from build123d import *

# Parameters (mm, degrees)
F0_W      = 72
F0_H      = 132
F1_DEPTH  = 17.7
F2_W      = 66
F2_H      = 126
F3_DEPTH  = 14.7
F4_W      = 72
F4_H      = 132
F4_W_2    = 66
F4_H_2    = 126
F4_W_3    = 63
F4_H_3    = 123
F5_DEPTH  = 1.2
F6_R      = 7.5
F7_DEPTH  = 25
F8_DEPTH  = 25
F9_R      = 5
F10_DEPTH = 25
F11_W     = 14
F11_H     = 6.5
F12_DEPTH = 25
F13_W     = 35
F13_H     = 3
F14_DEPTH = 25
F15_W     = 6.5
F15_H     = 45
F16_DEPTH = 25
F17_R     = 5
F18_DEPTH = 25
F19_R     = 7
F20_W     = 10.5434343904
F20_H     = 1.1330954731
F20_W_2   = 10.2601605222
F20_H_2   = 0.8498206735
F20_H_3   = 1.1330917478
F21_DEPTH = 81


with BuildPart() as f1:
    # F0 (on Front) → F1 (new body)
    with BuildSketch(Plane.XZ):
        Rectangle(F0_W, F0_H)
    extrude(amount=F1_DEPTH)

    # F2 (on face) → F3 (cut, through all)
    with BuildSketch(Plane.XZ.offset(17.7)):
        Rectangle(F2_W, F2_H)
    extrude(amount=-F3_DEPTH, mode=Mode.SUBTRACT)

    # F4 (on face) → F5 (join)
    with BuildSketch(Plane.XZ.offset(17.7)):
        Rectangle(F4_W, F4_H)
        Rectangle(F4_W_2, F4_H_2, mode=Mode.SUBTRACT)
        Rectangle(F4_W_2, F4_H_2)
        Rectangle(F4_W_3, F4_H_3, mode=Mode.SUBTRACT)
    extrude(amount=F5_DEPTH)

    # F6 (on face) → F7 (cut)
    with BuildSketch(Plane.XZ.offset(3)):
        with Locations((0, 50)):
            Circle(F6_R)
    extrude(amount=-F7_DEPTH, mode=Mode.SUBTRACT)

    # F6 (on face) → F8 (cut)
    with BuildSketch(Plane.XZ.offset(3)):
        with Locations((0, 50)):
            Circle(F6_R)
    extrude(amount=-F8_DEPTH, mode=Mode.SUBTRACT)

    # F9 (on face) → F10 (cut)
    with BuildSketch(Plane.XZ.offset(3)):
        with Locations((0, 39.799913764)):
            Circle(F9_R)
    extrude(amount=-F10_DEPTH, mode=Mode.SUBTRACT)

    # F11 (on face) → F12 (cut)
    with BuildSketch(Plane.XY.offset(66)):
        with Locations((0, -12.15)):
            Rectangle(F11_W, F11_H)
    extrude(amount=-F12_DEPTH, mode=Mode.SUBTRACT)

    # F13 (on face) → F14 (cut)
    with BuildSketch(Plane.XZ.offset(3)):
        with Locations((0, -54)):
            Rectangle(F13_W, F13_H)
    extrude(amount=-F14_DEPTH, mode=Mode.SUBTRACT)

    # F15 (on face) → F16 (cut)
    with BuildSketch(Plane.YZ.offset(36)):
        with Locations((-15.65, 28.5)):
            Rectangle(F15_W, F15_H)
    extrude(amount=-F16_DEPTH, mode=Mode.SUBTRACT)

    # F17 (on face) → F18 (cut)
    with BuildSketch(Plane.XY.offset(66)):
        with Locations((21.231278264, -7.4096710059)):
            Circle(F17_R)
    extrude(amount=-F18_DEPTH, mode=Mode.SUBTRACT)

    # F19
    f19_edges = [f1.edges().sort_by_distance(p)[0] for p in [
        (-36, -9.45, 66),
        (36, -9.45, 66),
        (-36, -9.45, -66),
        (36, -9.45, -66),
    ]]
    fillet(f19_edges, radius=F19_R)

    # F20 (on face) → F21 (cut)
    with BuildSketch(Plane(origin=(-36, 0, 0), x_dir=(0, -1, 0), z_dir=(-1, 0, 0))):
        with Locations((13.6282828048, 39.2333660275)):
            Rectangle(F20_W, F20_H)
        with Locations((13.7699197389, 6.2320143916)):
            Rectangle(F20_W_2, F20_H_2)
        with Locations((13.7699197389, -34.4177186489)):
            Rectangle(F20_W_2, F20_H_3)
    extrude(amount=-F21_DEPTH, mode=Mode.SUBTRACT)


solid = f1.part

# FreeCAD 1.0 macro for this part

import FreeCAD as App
import Part
import Sketcher
Q = App.Units.Quantity


def edges_at(feature, points):
    """Names of the edges that pass closest to the given points."""
    edges = feature.Shape.Edges
    near = lambda p: min(range(len(edges)), key=lambda i: edges[i].distToShape(Part.Vertex(*p))[0])
    return sorted({f"Edge{near(p) + 1}" for p in points})


def add_polygon(sketch, points):
    """Adds a closed chain of lines whose ends are joined by coincident constraints."""
    first, n = sketch.GeometryCount, len(points)
    for a, b in zip(points, points[1:] + points[:1]):
        sketch.addGeometry(Part.LineSegment(App.Vector(*a, 0), App.Vector(*b, 0)), False)
    for i in range(n):
        sketch.addConstraint(Sketcher.Constraint("Coincident", first + i, 2, first + (i + 1) % n, 1))

doc = App.newDocument("Part")
params = doc.addObject("Spreadsheet::Sheet", "Params")
for row, (alias, value) in enumerate([
    ("sketch1_width", "72 mm"),
    ("sketch1_height", "132 mm"),
    ("pad1_length", "17.7 mm"),
    ("sketch2_width", "66 mm"),
    ("sketch2_height", "126 mm"),
    ("pocket1_length", "14.7 mm"),
    ("sketch3_width", "72 mm"),
    ("sketch3_width2", "63 mm"),
    ("sketch3_height", "132 mm"),
    ("sketch3_height2", "123 mm"),
    ("pad2_length", "1.2 mm"),
    ("sketch4_diameter", "15 mm"),
    ("pocket2_length", "25 mm"),
    ("sketch5_diameter", "15 mm"),
    ("pocket3_length", "25 mm"),
    ("sketch6_diameter", "10 mm"),
    ("pocket4_length", "25 mm"),
    ("sketch7_width", "14 mm"),
    ("sketch7_height", "6.5 mm"),
    ("pocket5_length", "25 mm"),
    ("sketch8_width", "35 mm"),
    ("sketch8_height", "3 mm"),
    ("pocket6_length", "25 mm"),
    ("sketch9_height", "45 mm"),
    ("sketch9_width", "6.5 mm"),
    ("pocket7_length", "25 mm"),
    ("sketch10_diameter", "10 mm"),
    ("pocket8_length", "25 mm"),
    ("fillet_radius", "7 mm"),
    ("pocket9_length", "81 mm"),
], start=1):
    params.set(f"A{row}", alias)
    params.set(f"B{row}", "=" + value)
    params.setAlias(f"B{row}", alias)

body = doc.addObject("PartDesign::Body", "Body")

sketch1 = body.newObject("Sketcher::SketchObject", "Sketch")
sketch1.AttachmentSupport = (doc.getObject("XZ_Plane"), [""])
sketch1.MapMode = "FlatFace"
add_polygon(sketch1, [(-36, 66), (-36, -66), (36, -66), (36, 66)])
sketch1.addConstraint(Sketcher.Constraint("Vertical", 0))
sketch1.addConstraint(Sketcher.Constraint("Horizontal", 1))
sketch1.addConstraint(Sketcher.Constraint("Vertical", 2))
sketch1.addConstraint(Sketcher.Constraint("Horizontal", 3))
sketch1.addConstraint(Sketcher.Constraint("Symmetric", 0, 2, 2, 2, -1, 1))
sketch1.addConstraint(Sketcher.Constraint("DistanceX", 1, 1, 1, 2, Q("72 mm")))
sketch1.addConstraint(Sketcher.Constraint("DistanceY", 0, 2, 0, 1, Q("132 mm")))
sketch1.setExpression("Constraints[9]", "Params.sketch1_width")
sketch1.setExpression("Constraints[10]", "Params.sketch1_height")
pad1 = body.newObject("PartDesign::Pad", "Pad")
pad1.Profile = sketch1
pad1.setExpression("Length", "Params.pad1_length")

sketch2 = body.newObject("Sketcher::SketchObject", "Sketch001")
sketch2.AttachmentSupport = (doc.getObject("XZ_Plane"), [""])
sketch2.MapMode = "FlatFace"
sketch2.AttachmentOffset = App.Placement(App.Vector(0, 0, 17.7), App.Rotation())
add_polygon(sketch2, [(-33, 63), (-33, -63), (33, -63), (33, 63)])
sketch2.addConstraint(Sketcher.Constraint("Vertical", 0))
sketch2.addConstraint(Sketcher.Constraint("Horizontal", 1))
sketch2.addConstraint(Sketcher.Constraint("Vertical", 2))
sketch2.addConstraint(Sketcher.Constraint("Horizontal", 3))
sketch2.addConstraint(Sketcher.Constraint("Symmetric", 0, 2, 2, 2, -1, 1))
sketch2.addConstraint(Sketcher.Constraint("DistanceX", 1, 1, 1, 2, Q("66 mm")))
sketch2.addConstraint(Sketcher.Constraint("DistanceY", 0, 2, 0, 1, Q("126 mm")))
sketch2.setExpression("Constraints[9]", "Params.sketch2_width")
sketch2.setExpression("Constraints[10]", "Params.sketch2_height")
pocket1 = body.newObject("PartDesign::Pocket", "Pocket")
pocket1.Profile = sketch2
pocket1.setExpression("Length", "Params.pocket1_length")

sketch3 = body.newObject("Sketcher::SketchObject", "Sketch002")
sketch3.AttachmentSupport = (doc.getObject("XZ_Plane"), [""])
sketch3.MapMode = "FlatFace"
sketch3.AttachmentOffset = App.Placement(App.Vector(0, 0, 17.7), App.Rotation())
add_polygon(sketch3, [(-36, 66), (-36, -66), (36, -66), (36, 66)])
add_polygon(sketch3, [(32, -62), (-32, -62), (-32, 62), (32, 62)])
sketch3.addConstraint(Sketcher.Constraint("Vertical", 0))
sketch3.addConstraint(Sketcher.Constraint("Horizontal", 1))
sketch3.addConstraint(Sketcher.Constraint("Vertical", 2))
sketch3.addConstraint(Sketcher.Constraint("Horizontal", 3))
sketch3.addConstraint(Sketcher.Constraint("Horizontal", 4))
sketch3.addConstraint(Sketcher.Constraint("Vertical", 5))
sketch3.addConstraint(Sketcher.Constraint("Horizontal", 6))
sketch3.addConstraint(Sketcher.Constraint("Vertical", 7))
sketch3.addConstraint(Sketcher.Constraint("Symmetric", 0, 2, 2, 2, -1, 1))
sketch3.addConstraint(Sketcher.Constraint("Symmetric", 4, 2, 6, 2, -1, 1))
sketch3.addConstraint(Sketcher.Constraint("DistanceX", 1, 1, 1, 2, Q("72 mm")))
sketch3.addConstraint(Sketcher.Constraint("DistanceX", 4, 2, 4, 1, Q("63 mm")))
sketch3.addConstraint(Sketcher.Constraint("DistanceY", 0, 2, 0, 1, Q("132 mm")))
sketch3.addConstraint(Sketcher.Constraint("DistanceY", 5, 1, 5, 2, Q("123 mm")))
sketch3.setExpression("Constraints[18]", "Params.sketch3_width")
sketch3.setExpression("Constraints[19]", "Params.sketch3_width2")
sketch3.setExpression("Constraints[20]", "Params.sketch3_height")
sketch3.setExpression("Constraints[21]", "Params.sketch3_height2")
pad2 = body.newObject("PartDesign::Pad", "Pad001")
pad2.Profile = sketch3
pad2.setExpression("Length", "Params.pad2_length")

sketch4 = body.newObject("Sketcher::SketchObject", "Sketch003")
sketch4.AttachmentSupport = (doc.getObject("XZ_Plane"), [""])
sketch4.MapMode = "FlatFace"
sketch4.AttachmentOffset = App.Placement(App.Vector(0, 0, 3), App.Rotation())
sketch4.addGeometry(Part.Circle(App.Vector(0, 50, 0), App.Vector(0, 0, 1), 8), False)
sketch4.addConstraint(Sketcher.Constraint("PointOnObject", 0, 3, -2))
sketch4.addConstraint(Sketcher.Constraint("Diameter", 0, Q("15 mm")))
sketch4.addConstraint(Sketcher.Constraint("DistanceY", -1, 1, 0, 3, Q("50 mm")))
sketch4.setExpression("Constraints[1]", "Params.sketch4_diameter")
pocket2 = body.newObject("PartDesign::Pocket", "Pocket001")
pocket2.Profile = sketch4
pocket2.setExpression("Length", "Params.pocket2_length")

sketch5 = body.newObject("Sketcher::SketchObject", "Sketch004")
sketch5.AttachmentSupport = (doc.getObject("XZ_Plane"), [""])
sketch5.MapMode = "FlatFace"
sketch5.AttachmentOffset = App.Placement(App.Vector(0, 0, 3), App.Rotation())
sketch5.addGeometry(Part.Circle(App.Vector(0, 50, 0), App.Vector(0, 0, 1), 8), False)
sketch5.addConstraint(Sketcher.Constraint("PointOnObject", 0, 3, -2))
sketch5.addConstraint(Sketcher.Constraint("Diameter", 0, Q("15 mm")))
sketch5.addConstraint(Sketcher.Constraint("DistanceY", -1, 1, 0, 3, Q("50 mm")))
sketch5.setExpression("Constraints[1]", "Params.sketch5_diameter")
pocket3 = body.newObject("PartDesign::Pocket", "Pocket002")
pocket3.Profile = sketch5
pocket3.setExpression("Length", "Params.pocket3_length")

sketch6 = body.newObject("Sketcher::SketchObject", "Sketch005")
sketch6.AttachmentSupport = (doc.getObject("XZ_Plane"), [""])
sketch6.MapMode = "FlatFace"
sketch6.AttachmentOffset = App.Placement(App.Vector(0, 0, 3), App.Rotation())
sketch6.addGeometry(Part.Circle(App.Vector(0, 40, 0), App.Vector(0, 0, 1), 5), False)
sketch6.addConstraint(Sketcher.Constraint("PointOnObject", 0, 3, -2))
sketch6.addConstraint(Sketcher.Constraint("Diameter", 0, Q("10 mm")))
sketch6.addConstraint(Sketcher.Constraint("DistanceY", -1, 1, 0, 3, Q("39.799914 mm")))
sketch6.setExpression("Constraints[1]", "Params.sketch6_diameter")
pocket4 = body.newObject("PartDesign::Pocket", "Pocket003")
pocket4.Profile = sketch6
pocket4.setExpression("Length", "Params.pocket4_length")

sketch7 = body.newObject("Sketcher::SketchObject", "Sketch006")
sketch7.AttachmentSupport = (doc.getObject("XY_Plane"), [""])
sketch7.MapMode = "FlatFace"
sketch7.AttachmentOffset = App.Placement(App.Vector(0, 0, 66), App.Rotation())
add_polygon(sketch7, [(-7, -9), (-7, -15), (7, -15), (7, -9)])
sketch7.addConstraint(Sketcher.Constraint("Vertical", 0))
sketch7.addConstraint(Sketcher.Constraint("Horizontal", 1))
sketch7.addConstraint(Sketcher.Constraint("Vertical", 2))
sketch7.addConstraint(Sketcher.Constraint("Horizontal", 3))
sketch7.addConstraint(Sketcher.Constraint("DistanceX", 1, 1, 1, 2, Q("14 mm")))
sketch7.addConstraint(Sketcher.Constraint("DistanceY", 0, 2, 0, 1, Q("6.5 mm")))
sketch7.addConstraint(Sketcher.Constraint("DistanceX", 0, 2, -1, 1, Q("7 mm")))
sketch7.addConstraint(Sketcher.Constraint("DistanceY", 0, 2, -1, 1, Q("15.4 mm")))
sketch7.setExpression("Constraints[8]", "Params.sketch7_width")
sketch7.setExpression("Constraints[9]", "Params.sketch7_height")
pocket5 = body.newObject("PartDesign::Pocket", "Pocket004")
pocket5.Profile = sketch7
pocket5.setExpression("Length", "Params.pocket5_length")

sketch8 = body.newObject("Sketcher::SketchObject", "Sketch007")
sketch8.AttachmentSupport = (doc.getObject("XZ_Plane"), [""])
sketch8.MapMode = "FlatFace"
sketch8.AttachmentOffset = App.Placement(App.Vector(0, 0, 3), App.Rotation())
add_polygon(sketch8, [(-17.5, -52.5), (-17.5, -55.5), (17.5, -55.5), (17.5, -52.5)])
sketch8.addConstraint(Sketcher.Constraint("Vertical", 0))
sketch8.addConstraint(Sketcher.Constraint("Horizontal", 1))
sketch8.addConstraint(Sketcher.Constraint("Vertical", 2))
sketch8.addConstraint(Sketcher.Constraint("Horizontal", 3))
sketch8.addConstraint(Sketcher.Constraint("DistanceX", 1, 1, 1, 2, Q("35 mm")))
sketch8.addConstraint(Sketcher.Constraint("DistanceY", 0, 2, 0, 1, Q("3 mm")))
sketch8.addConstraint(Sketcher.Constraint("DistanceX", 0, 2, -1, 1, Q("17.5 mm")))
sketch8.addConstraint(Sketcher.Constraint("DistanceY", 0, 2, -1, 1, Q("55.5 mm")))
sketch8.setExpression("Constraints[8]", "Params.sketch8_width")
sketch8.setExpression("Constraints[9]", "Params.sketch8_height")
pocket6 = body.newObject("PartDesign::Pocket", "Pocket005")
pocket6.Profile = sketch8
pocket6.setExpression("Length", "Params.pocket6_length")

sketch9 = body.newObject("Sketcher::SketchObject", "Sketch008")
sketch9.AttachmentSupport = (doc.getObject("YZ_Plane"), [""])
sketch9.MapMode = "FlatFace"
sketch9.AttachmentOffset = App.Placement(App.Vector(0, 0, 36), App.Rotation())
add_polygon(sketch9, [(-19, 51), (-19, 6), (-12, 6), (-12, 51)])
sketch9.addConstraint(Sketcher.Constraint("Vertical", 0))
sketch9.addConstraint(Sketcher.Constraint("Horizontal", 1))
sketch9.addConstraint(Sketcher.Constraint("Vertical", 2))
sketch9.addConstraint(Sketcher.Constraint("Horizontal", 3))
sketch9.addConstraint(Sketcher.Constraint("DistanceY", 0, 2, 0, 1, Q("45 mm")))
sketch9.addConstraint(Sketcher.Constraint("DistanceX", 1, 1, 1, 2, Q("6.5 mm")))
sketch9.addConstraint(Sketcher.Constraint("DistanceY", -1, 1, 0, 2, Q("6 mm")))
sketch9.addConstraint(Sketcher.Constraint("DistanceX", 0, 2, -1, 1, Q("18.9 mm")))
sketch9.setExpression("Constraints[8]", "Params.sketch9_height")
sketch9.setExpression("Constraints[9]", "Params.sketch9_width")
pocket7 = body.newObject("PartDesign::Pocket", "Pocket006")
pocket7.Profile = sketch9
pocket7.setExpression("Length", "Params.pocket7_length")

sketch10 = body.newObject("Sketcher::SketchObject", "Sketch009")
sketch10.AttachmentSupport = (doc.getObject("XY_Plane"), [""])
sketch10.MapMode = "FlatFace"
sketch10.AttachmentOffset = App.Placement(App.Vector(0, 0, 66), App.Rotation())
sketch10.addGeometry(Part.Circle(App.Vector(21, -7, 0), App.Vector(0, 0, 1), 5), False)
sketch10.addConstraint(Sketcher.Constraint("Diameter", 0, Q("10 mm")))
sketch10.addConstraint(Sketcher.Constraint("DistanceX", -1, 1, 0, 3, Q("21.231278 mm")))
sketch10.addConstraint(Sketcher.Constraint("DistanceY", 0, 3, -1, 1, Q("7.409671 mm")))
sketch10.setExpression("Constraints[0]", "Params.sketch10_diameter")
pocket8 = body.newObject("PartDesign::Pocket", "Pocket007")
pocket8.Profile = sketch10
pocket8.setExpression("Length", "Params.pocket8_length")
doc.recompute()

fillet = body.newObject("PartDesign::Fillet", "Fillet")
fillet.Base = (pocket8, edges_at(pocket8, [
    (-36, -9.45, 66),
    (36, -9.45, 66),
    (-36, -9.45, -66),
    (36, -9.45, -66),
]))
fillet.setExpression("Radius", "Params.fillet_radius")

sketch11 = body.newObject("Sketcher::SketchObject", "Sketch010")
sketch11.AttachmentSupport = (doc.getObject("YZ_Plane"), [""])
sketch11.MapMode = "FlatFace"
sketch11.AttachmentOffset = App.Placement(App.Vector(0, 0, -36), App.Rotation())
add_polygon(sketch11, [(-8.4, 39.8), (-8.4, 38.7), (-18.9, 38.7), (-18.9, 39.8)])
add_polygon(sketch11, [(-8.6, 6.7), (-8.6, 5.8), (-18.9, 5.8), (-18.9, 6.7)])
add_polygon(sketch11, [(-8.6, -33.9), (-8.6, -35), (-18.9, -35), (-18.9, -33.9)])
sketch11.addConstraint(Sketcher.Constraint("Vertical", 0))
sketch11.addConstraint(Sketcher.Constraint("Horizontal", 1))
sketch11.addConstraint(Sketcher.Constraint("Vertical", 2))
sketch11.addConstraint(Sketcher.Constraint("Horizontal", 3))
sketch11.addConstraint(Sketcher.Constraint("Vertical", 4))
sketch11.addConstraint(Sketcher.Constraint("Horizontal", 5))
sketch11.addConstraint(Sketcher.Constraint("Vertical", 6))
sketch11.addConstraint(Sketcher.Constraint("Horizontal", 7))
sketch11.addConstraint(Sketcher.Constraint("Vertical", 8))
sketch11.addConstraint(Sketcher.Constraint("Horizontal", 9))
sketch11.addConstraint(Sketcher.Constraint("Vertical", 10))
sketch11.addConstraint(Sketcher.Constraint("Horizontal", 11))
sketch11.addConstraint(Sketcher.Constraint("Vertical", 2, 2, 5, 2))
sketch11.addConstraint(Sketcher.Constraint("Vertical", 7, 2, 8, 2))
sketch11.addConstraint(Sketcher.Constraint("Vertical", 6, 2, 9, 2))
sketch11.addConstraint(Sketcher.Constraint("DistanceX", 1, 2, -1, 1, Q("18.9 mm")))
sketch11.addConstraint(Sketcher.Constraint("DistanceX", 5, 2, 5, 1, Q("10.260161 mm")))
sketch11.addConstraint(Sketcher.Constraint("DistanceY", 4, 2, 4, 1, Q("0.849821 mm")))
sketch11.addConstraint(Sketcher.Constraint("DistanceY", 8, 2, 8, 1, Q("1.133092 mm")))
sketch11.addConstraint(Sketcher.Constraint("DistanceX", 1, 2, 1, 1, Q("10.543434 mm")))
sketch11.addConstraint(Sketcher.Constraint("DistanceY", 0, 2, 0, 1, Q("1.133095 mm")))
sketch11.addConstraint(Sketcher.Constraint("DistanceY", -1, 1, 0, 2, Q("38.666818 mm")))
sketch11.addConstraint(Sketcher.Constraint("DistanceY", 4, 2, 3, 2, Q("33.99281 mm")))
sketch11.addConstraint(Sketcher.Constraint("DistanceY", 8, 2, 4, 2, Q("40.791369 mm")))
pocket9 = body.newObject("PartDesign::Pocket", "Pocket008")
pocket9.Profile = sketch11
pocket9.setExpression("Length", "Params.pocket9_length")
pocket9.Reversed = True

doc.recompute()
